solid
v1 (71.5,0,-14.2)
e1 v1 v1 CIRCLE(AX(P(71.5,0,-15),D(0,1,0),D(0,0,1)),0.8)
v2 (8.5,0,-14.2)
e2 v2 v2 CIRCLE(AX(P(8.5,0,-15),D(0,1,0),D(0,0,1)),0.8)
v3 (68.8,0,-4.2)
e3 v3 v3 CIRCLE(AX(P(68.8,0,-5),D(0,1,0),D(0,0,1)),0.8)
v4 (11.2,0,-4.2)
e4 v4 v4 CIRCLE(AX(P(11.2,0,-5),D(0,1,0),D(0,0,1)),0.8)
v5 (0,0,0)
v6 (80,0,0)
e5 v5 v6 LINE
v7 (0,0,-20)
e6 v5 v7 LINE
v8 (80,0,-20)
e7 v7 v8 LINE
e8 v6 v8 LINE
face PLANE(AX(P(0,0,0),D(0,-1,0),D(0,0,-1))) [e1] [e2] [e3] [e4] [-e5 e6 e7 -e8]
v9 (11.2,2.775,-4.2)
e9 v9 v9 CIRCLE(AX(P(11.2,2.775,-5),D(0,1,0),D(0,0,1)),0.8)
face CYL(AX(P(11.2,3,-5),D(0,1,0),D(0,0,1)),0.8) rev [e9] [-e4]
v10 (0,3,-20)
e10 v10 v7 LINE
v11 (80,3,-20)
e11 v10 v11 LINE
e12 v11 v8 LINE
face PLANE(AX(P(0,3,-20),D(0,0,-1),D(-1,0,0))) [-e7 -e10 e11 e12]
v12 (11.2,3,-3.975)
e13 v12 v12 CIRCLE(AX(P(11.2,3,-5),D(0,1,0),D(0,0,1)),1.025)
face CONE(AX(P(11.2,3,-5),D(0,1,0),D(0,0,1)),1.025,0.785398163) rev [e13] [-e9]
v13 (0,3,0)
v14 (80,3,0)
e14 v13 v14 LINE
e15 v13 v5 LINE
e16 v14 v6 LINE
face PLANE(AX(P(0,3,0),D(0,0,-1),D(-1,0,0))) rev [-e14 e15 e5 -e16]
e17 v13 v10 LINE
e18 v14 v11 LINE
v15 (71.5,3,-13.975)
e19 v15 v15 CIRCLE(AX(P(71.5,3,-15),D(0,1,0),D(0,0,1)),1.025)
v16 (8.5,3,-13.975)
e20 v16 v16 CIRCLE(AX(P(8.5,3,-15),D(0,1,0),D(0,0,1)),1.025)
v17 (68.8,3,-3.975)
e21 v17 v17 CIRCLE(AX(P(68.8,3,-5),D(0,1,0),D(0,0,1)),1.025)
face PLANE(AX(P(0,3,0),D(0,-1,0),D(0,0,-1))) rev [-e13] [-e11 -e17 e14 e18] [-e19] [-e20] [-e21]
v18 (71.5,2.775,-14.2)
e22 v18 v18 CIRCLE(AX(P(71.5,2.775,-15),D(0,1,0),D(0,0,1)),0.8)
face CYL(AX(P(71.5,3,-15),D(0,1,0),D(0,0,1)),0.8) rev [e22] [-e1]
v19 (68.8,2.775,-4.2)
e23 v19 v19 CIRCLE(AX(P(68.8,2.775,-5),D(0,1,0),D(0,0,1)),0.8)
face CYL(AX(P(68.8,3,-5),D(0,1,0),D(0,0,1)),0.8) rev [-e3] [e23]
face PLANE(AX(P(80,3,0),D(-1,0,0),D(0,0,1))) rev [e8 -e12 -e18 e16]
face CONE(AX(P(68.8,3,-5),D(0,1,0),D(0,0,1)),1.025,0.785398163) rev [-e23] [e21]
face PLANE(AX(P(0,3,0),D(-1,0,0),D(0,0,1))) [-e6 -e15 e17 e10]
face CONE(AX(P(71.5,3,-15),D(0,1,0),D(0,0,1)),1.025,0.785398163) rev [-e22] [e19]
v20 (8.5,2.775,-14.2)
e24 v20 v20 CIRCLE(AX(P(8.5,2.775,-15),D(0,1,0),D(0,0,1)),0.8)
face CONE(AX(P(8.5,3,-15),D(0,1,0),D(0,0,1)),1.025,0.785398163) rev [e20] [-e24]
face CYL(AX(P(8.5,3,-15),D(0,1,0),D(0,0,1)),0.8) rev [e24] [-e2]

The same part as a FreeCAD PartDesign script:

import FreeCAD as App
import Part
import Sketcher

V = App.Vector
Q = App.Units.Quantity


def add_polygon(sketch, points):
    """Adds a closed chain of lines whose ends are joined by coincident constraints."""
    first, n = sketch.GeometryCount, len(points)
    for a, b in zip(points, points[1:] + points[:1]):
        sketch.addGeometry(Part.LineSegment(App.Vector(*a, 0), App.Vector(*b, 0)), False)
    for i in range(n):
        sketch.addConstraint(Sketcher.Constraint("Coincident", first + i, 2, first + (i + 1) % n, 1))

doc = App.newDocument("Part")
params = doc.addObject("Spreadsheet::Sheet", "Params")
for row, (alias, value) in enumerate([
    ("sketch1_width", "80 mm"),
    ("sketch1_height", "20 mm"),
    ("pad1_length", "3 mm"),
    ("sketch2_diameter", "1.6 mm"),
    ("hole_diameter", "1.6 mm"),
    ("hole_csink_diameter", "2.05 mm"),
], start=1):
    params.set(f"A{row}", alias)
    params.set(f"B{row}", "=" + value)
    params.setAlias(f"B{row}", alias)

body = doc.addObject("PartDesign::Body", "Body")

# Sketch on XZ plane
sketch1 = doc.addObject("Sketcher::SketchObject", "Sketch")
body.addObject(sketch1)
sketch1.AttachmentSupport = (doc.XZ_Plane, [""])
sketch1.MapMode = "FlatFace"
add_polygon(sketch1, [(0, -20), (0, 0), (80, 0), (80, -20)])  # lines 0-3
sketch1.addConstraint([
    Sketcher.Constraint("Vertical", 0),
    Sketcher.Constraint("Horizontal", 1),
    Sketcher.Constraint("Vertical", 2),
    Sketcher.Constraint("Horizontal", 3),
    Sketcher.Constraint("Coincident", 0, 2, -1, 1),
    Sketcher.Constraint("DistanceX", 1, 1, 1, 2, Q("80 mm")),
    Sketcher.Constraint("DistanceY", 0, 1, 0, 2, Q("20 mm")),
])
sketch1.setExpression("Constraints[9]", "Params.sketch1_width")
sketch1.setExpression("Constraints[10]", "Params.sketch1_height")
pad1 = doc.addObject("PartDesign::Pad", "Pad")
body.addObject(pad1)
pad1.Profile = sketch1
pad1.setExpression("Length", "Params.pad1_length")
pad1.Reversed = True

# Sketch on XZ plane
sketch2 = doc.addObject("Sketcher::SketchObject", "Sketch001")
body.addObject(sketch2)
sketch2.AttachmentSupport = (doc.XZ_Plane, [""])
sketch2.MapMode = "FlatFace"
sketch2.AttachmentOffset = App.Placement(V(0, 0, -3), App.Rotation())
sketch2.addGeometry([
    Part.Circle(V(8.5, -15, 0), V(0, 0, 1), 0.8),
    Part.Circle(V(11.2, -5, 0), V(0, 0, 1), 0.8),
    Part.Circle(V(71.5, -15, 0), V(0, 0, 1), 0.8),
    Part.Circle(V(68.8, -5, 0), V(0, 0, 1), 0.8),
], False)
sketch2.addConstraint([
    Sketcher.Constraint("Equal", 0, 1),
    Sketcher.Constraint("Equal", 1, 2),
    Sketcher.Constraint("Equal", 2, 3),
    Sketcher.Constraint("Horizontal", 0, 3, 2, 3),
    Sketcher.Constraint("Horizontal", 1, 3, 3, 3),
    Sketcher.Constraint("Diameter", 0, Q("1.6 mm")),
    Sketcher.Constraint("DistanceY", 0, 3, -1, 1, Q("15 mm")),
    Sketcher.Constraint("DistanceY", 1, 3, -1, 1, Q("5 mm")),
    Sketcher.Constraint("DistanceX", 0, 3, 2, 3, Q("63 mm")),
    Sketcher.Constraint("DistanceX", -1, 1, 0, 3, Q("8.5 mm")),
    Sketcher.Constraint("DistanceX", -1, 1, 1, 3, Q("11.2 mm")),
    Sketcher.Constraint("DistanceX", -1, 1, 3, 3, Q("68.8 mm")),
])
sketch2.setExpression("Constraints[5]", "Params.sketch2_diameter")
doc.recompute()
hole = doc.addObject("PartDesign::Hole", "Hole")
body.addObject(hole)
hole.Profile = sketch2
hole.ThreadType = "None"
hole.setExpression("Diameter", "Params.hole_diameter")
hole.DepthType = "ThroughAll"
hole.HoleCutType = "Countersink"
hole.setExpression("HoleCutDiameter", "Params.hole_csink_diameter")
hole.HoleCutCountersinkAngle = 90
hole.Reversed = True

doc.recompute()
